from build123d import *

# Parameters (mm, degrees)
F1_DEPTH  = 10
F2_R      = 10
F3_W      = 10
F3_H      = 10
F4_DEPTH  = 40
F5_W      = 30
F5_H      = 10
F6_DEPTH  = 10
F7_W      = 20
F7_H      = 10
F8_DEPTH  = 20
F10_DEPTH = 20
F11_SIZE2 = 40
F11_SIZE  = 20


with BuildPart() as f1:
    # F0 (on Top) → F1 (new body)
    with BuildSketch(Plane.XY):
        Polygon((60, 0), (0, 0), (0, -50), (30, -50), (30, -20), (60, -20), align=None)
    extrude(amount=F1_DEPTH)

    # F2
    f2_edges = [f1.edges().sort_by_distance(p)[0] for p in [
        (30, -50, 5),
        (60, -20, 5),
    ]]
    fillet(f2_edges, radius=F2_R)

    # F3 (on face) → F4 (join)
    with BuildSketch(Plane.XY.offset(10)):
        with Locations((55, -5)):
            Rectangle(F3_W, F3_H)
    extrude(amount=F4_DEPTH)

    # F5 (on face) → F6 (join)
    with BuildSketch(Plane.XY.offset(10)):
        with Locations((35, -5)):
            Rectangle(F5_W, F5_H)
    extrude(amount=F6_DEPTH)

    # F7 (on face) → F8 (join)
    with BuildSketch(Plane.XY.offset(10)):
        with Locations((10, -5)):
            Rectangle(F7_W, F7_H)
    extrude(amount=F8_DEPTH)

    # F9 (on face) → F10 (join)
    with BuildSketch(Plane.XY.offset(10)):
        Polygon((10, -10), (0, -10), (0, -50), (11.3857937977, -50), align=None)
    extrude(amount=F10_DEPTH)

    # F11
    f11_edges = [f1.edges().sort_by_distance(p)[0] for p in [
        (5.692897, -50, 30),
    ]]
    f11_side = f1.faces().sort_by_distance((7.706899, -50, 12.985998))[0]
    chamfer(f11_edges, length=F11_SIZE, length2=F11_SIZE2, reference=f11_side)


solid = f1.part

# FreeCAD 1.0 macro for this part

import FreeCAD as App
import Part
import Sketcher
from FreeCAD import Vector


def edges_at(feature, points):
    """Names of the edges that pass closest to the given points."""
    edges = feature.Shape.Edges
    near = lambda p: min(range(len(edges)), key=lambda i: edges[i].distToShape(Part.Vertex(*p))[0])
    return sorted({f"Edge{near(p) + 1}" for p in points})

doc = App.newDocument("Part")
body = doc.addObject("PartDesign::Body", "Body")

# Sketch on XY plane
sketch1 = body.newObject("Sketcher::SketchObject", "Sketch")
sketch1.AttachmentSupport = (doc.getObject("XY_Plane"), [""])
sketch1.MapMode = "FlatFace"
sketch1.addGeometry(Part.LineSegment(Vector(60, 0, 0), Vector(0, 0, 0)), False)
sketch1.addGeometry(Part.LineSegment(Vector(0, 0, 0), Vector(0, -50, 0)), False)
sketch1.addGeometry(Part.LineSegment(Vector(0, -50, 0), Vector(30, -50, 0)), False)
sketch1.addGeometry(Part.LineSegment(Vector(30, -50, 0), Vector(30, -20, 0)), False)
sketch1.addGeometry(Part.LineSegment(Vector(30, -20, 0), Vector(60, -20, 0)), False)
sketch1.addGeometry(Part.LineSegment(Vector(60, -20, 0), Vector(60, 0, 0)), False)
sketch1.addConstraint(Sketcher.Constraint("Coincident", 0, 2, 1, 1))
sketch1.addConstraint(Sketcher.Constraint("Coincident", 1, 2, 2, 1))
sketch1.addConstraint(Sketcher.Constraint("Coincident", 2, 2, 3, 1))
sketch1.addConstraint(Sketcher.Constraint("Coincident", 3, 2, 4, 1))
sketch1.addConstraint(Sketcher.Constraint("Coincident", 4, 2, 5, 1))
sketch1.addConstraint(Sketcher.Constraint("Coincident", 5, 2, 0, 1))
sketch1.addConstraint(Sketcher.Constraint("Horizontal", 0))
sketch1.addConstraint(Sketcher.Constraint("Vertical", 1))
sketch1.addConstraint(Sketcher.Constraint("Horizontal", 2))
sketch1.addConstraint(Sketcher.Constraint("Vertical", 3))
sketch1.addConstraint(Sketcher.Constraint("Horizontal", 4))
sketch1.addConstraint(Sketcher.Constraint("Vertical", 5))
sketch1.addConstraint(Sketcher.Constraint("Coincident", 0, 2, -1, 1))
sketch1.addConstraint(Sketcher.Constraint("Equal", 2, 4))
sketch1.addConstraint(Sketcher.Constraint("Equal", 4, 3))
sketch1.addConstraint(Sketcher.Constraint("DistanceX", 0, 2, 0, 1, 60.0))
sketch1.addConstraint(Sketcher.Constraint("DistanceY", 1, 2, 1, 1, 50.0))
pad1 = body.newObject("PartDesign::Pad", "Pad")
pad1.Profile = sketch1
pad1.Length = 10
doc.recompute()

fillet = body.newObject("PartDesign::Fillet", "Fillet")
fillet.Base = (pad1, edges_at(pad1, [(30, -50, 5), (60, -20, 5)]))
fillet.Radius = 10

# Sketch on XY plane
sketch2 = body.newObject("Sketcher::SketchObject", "Sketch001")
sketch2.AttachmentSupport = (doc.getObject("XY_Plane"), [""])
sketch2.MapMode = "FlatFace"
sketch2.AttachmentOffset = App.Placement(Vector(0, 0, 10), App.Rotation())
sketch2.addGeometry(Part.LineSegment(Vector(50, 0, 0), Vector(50, -10, 0)), False)
sketch2.addGeometry(Part.LineSegment(Vector(50, -10, 0), Vector(60, -10, 0)), False)
sketch2.addGeometry(Part.LineSegment(Vector(60, -10, 0), Vector(60, 0, 0)), False)
sketch2.addGeometry(Part.LineSegment(Vector(60, 0, 0), Vector(50, 0, 0)), False)
sketch2.addConstraint(Sketcher.Constraint("Coincident", 0, 2, 1, 1))
sketch2.addConstraint(Sketcher.Constraint("Coincident", 1, 2, 2, 1))
sketch2.addConstraint(Sketcher.Constraint("Coincident", 2, 2, 3, 1))
sketch2.addConstraint(Sketcher.Constraint("Coincident", 3, 2, 0, 1))
sketch2.addConstraint(Sketcher.Constraint("Vertical", 0))
sketch2.addConstraint(Sketcher.Constraint("Horizontal", 1))
sketch2.addConstraint(Sketcher.Constraint("Vertical", 2))
sketch2.addConstraint(Sketcher.Constraint("Horizontal", 3))
sketch2.addConstraint(Sketcher.Constraint("PointOnObject", 2, 2, -1))
sketch2.addConstraint(Sketcher.Constraint("Equal", 3, 0))
sketch2.addConstraint(Sketcher.Constraint("DistanceX", 1, 1, 1, 2, 10.0))
sketch2.addConstraint(Sketcher.Constraint("DistanceX", -1, 1, 0, 2, 50.0))
pad2 = body.newObject("PartDesign::Pad", "Pad001")
pad2.Profile = sketch2
pad2.Length = 40

# Sketch on XY plane
sketch3 = body.newObject("Sketcher::SketchObject", "Sketch002")
sketch3.AttachmentSupport = (doc.getObject("XY_Plane"), [""])
sketch3.MapMode = "FlatFace"
sketch3.AttachmentOffset = App.Placement(Vector(0, 0, 10), App.Rotation())
sketch3.addGeometry(Part.LineSegment(Vector(20, 0, 0), Vector(20, -10, 0)), False)
sketch3.addGeometry(Part.LineSegment(Vector(20, -10, 0), Vector(50, -10, 0)), False)
sketch3.addGeometry(Part.LineSegment(Vector(50, -10, 0), Vector(50, 0, 0)), False)
sketch3.addGeometry(Part.LineSegment(Vector(50, 0, 0), Vector(20, 0, 0)), False)
sketch3.addConstraint(Sketcher.Constraint("Coincident", 0, 2, 1, 1))
sketch3.addConstraint(Sketcher.Constraint("Coincident", 1, 2, 2, 1))
sketch3.addConstraint(Sketcher.Constraint("Coincident", 2, 2, 3, 1))
sketch3.addConstraint(Sketcher.Constraint("Coincident", 3, 2, 0, 1))
sketch3.addConstraint(Sketcher.Constraint("Vertical", 0))
sketch3.addConstraint(Sketcher.Constraint("Horizontal", 1))
sketch3.addConstraint(Sketcher.Constraint("Vertical", 2))
sketch3.addConstraint(Sketcher.Constraint("Horizontal", 3))
sketch3.addConstraint(Sketcher.Constraint("PointOnObject", 2, 2, -1))
sketch3.addConstraint(Sketcher.Constraint("DistanceX", 1, 1, 1, 2, 30.0))
sketch3.addConstraint(Sketcher.Constraint("DistanceY", 0, 2, 0, 1, 10.0))
sketch3.addConstraint(Sketcher.Constraint("DistanceX", -1, 1, 0, 2, 20.0))
pad3 = body.newObject("PartDesign::Pad", "Pad002")
pad3.Profile = sketch3
pad3.Length = 10

# Sketch on XY plane
sketch4 = body.newObject("Sketcher::SketchObject", "Sketch003")
sketch4.AttachmentSupport = (doc.getObject("XY_Plane"), [""])
sketch4.MapMode = "FlatFace"
sketch4.AttachmentOffset = App.Placement(Vector(0, 0, 10), App.Rotation())
sketch4.addGeometry(Part.LineSegment(Vector(0, 0, 0), Vector(0, -10, 0)), False)
sketch4.addGeometry(Part.LineSegment(Vector(0, -10, 0), Vector(20, -10, 0)), False)
sketch4.addGeometry(Part.LineSegment(Vector(20, -10, 0), Vector(20, 0, 0)), False)
sketch4.addGeometry(Part.LineSegment(Vector(20, 0, 0), Vector(0, 0, 0)), False)
sketch4.addConstraint(Sketcher.Constraint("Coincident", 0, 2, 1, 1))
sketch4.addConstraint(Sketcher.Constraint("Coincident", 1, 2, 2, 1))
sketch4.addConstraint(Sketcher.Constraint("Coincident", 2, 2, 3, 1))
sketch4.addConstraint(Sketcher.Constraint("Coincident", 3, 2, 0, 1))
sketch4.addConstraint(Sketcher.Constraint("Vertical", 0))
sketch4.addConstraint(Sketcher.Constraint("Horizontal", 1))
sketch4.addConstraint(Sketcher.Constraint("Vertical", 2))
sketch4.addConstraint(Sketcher.Constraint("Horizontal", 3))
sketch4.addConstraint(Sketcher.Constraint("Coincident", 3, 2, -1, 1))
sketch4.addConstraint(Sketcher.Constraint("DistanceX", 1, 1, 1, 2, 20.0))
sketch4.addConstraint(Sketcher.Constraint("DistanceY", 0, 2, 0, 1, 10.0))
pad4 = body.newObject("PartDesign::Pad", "Pad003")
pad4.Profile = sketch4
pad4.Length = 20

# Sketch on XY plane
sketch5 = body.newObject("Sketcher::SketchObject", "Sketch004")
sketch5.AttachmentSupport = (doc.getObject("XY_Plane"), [""])
sketch5.MapMode = "FlatFace"
sketch5.AttachmentOffset = App.Placement(Vector(0, 0, 10), App.Rotation())
sketch5.addGeometry(Part.LineSegment(Vector(10, -10, 0), Vector(0, -10, 0)), False)
sketch5.addGeometry(Part.LineSegment(Vector(0, -10, 0), Vector(0, -50, 0)), False)
sketch5.addGeometry(Part.LineSegment(Vector(0, -50, 0), Vector(11.385794, -50, 0)), False)
sketch5.addGeometry(Part.LineSegment(Vector(11.385794, -50, 0), Vector(10, -10, 0)), False)
sketch5.addConstraint(Sketcher.Constraint("Coincident", 0, 2, 1, 1))
sketch5.addConstraint(Sketcher.Constraint("Coincident", 1, 2, 2, 1))
sketch5.addConstraint(Sketcher.Constraint("Coincident", 2, 2, 3, 1))
sketch5.addConstraint(Sketcher.Constraint("Coincident", 3, 2, 0, 1))
sketch5.addConstraint(Sketcher.Constraint("Horizontal", 0))
sketch5.addConstraint(Sketcher.Constraint("Vertical", 1))
sketch5.addConstraint(Sketcher.Constraint("Horizontal", 2))
sketch5.addConstraint(Sketcher.Constraint("PointOnObject", 0, 2, -2))
sketch5.addConstraint(Sketcher.Constraint("DistanceX", 0, 2, 0, 1, 10.0))
sketch5.addConstraint(Sketcher.Constraint("DistanceY", 1, 2, 1, 1, 40.0))
sketch5.addConstraint(Sketcher.Constraint("DistanceY", 0, 2, -1, 1, 10.0))
sketch5.addConstraint(Sketcher.Constraint("Distance", 3, 40.023998))
pad5 = body.newObject("PartDesign::Pad", "Pad004")
pad5.Profile = sketch5
pad5.Length = 20
doc.recompute()

chamfer = body.newObject("PartDesign::Chamfer", "Chamfer")
chamfer.Base = (pad5, edges_at(pad5, [(5.693, -50, 30)]))
chamfer.ChamferType = "Two distances"
chamfer.Size = 20
chamfer.Size2 = 40
chamfer.FlipDirection = True

doc.recompute()
